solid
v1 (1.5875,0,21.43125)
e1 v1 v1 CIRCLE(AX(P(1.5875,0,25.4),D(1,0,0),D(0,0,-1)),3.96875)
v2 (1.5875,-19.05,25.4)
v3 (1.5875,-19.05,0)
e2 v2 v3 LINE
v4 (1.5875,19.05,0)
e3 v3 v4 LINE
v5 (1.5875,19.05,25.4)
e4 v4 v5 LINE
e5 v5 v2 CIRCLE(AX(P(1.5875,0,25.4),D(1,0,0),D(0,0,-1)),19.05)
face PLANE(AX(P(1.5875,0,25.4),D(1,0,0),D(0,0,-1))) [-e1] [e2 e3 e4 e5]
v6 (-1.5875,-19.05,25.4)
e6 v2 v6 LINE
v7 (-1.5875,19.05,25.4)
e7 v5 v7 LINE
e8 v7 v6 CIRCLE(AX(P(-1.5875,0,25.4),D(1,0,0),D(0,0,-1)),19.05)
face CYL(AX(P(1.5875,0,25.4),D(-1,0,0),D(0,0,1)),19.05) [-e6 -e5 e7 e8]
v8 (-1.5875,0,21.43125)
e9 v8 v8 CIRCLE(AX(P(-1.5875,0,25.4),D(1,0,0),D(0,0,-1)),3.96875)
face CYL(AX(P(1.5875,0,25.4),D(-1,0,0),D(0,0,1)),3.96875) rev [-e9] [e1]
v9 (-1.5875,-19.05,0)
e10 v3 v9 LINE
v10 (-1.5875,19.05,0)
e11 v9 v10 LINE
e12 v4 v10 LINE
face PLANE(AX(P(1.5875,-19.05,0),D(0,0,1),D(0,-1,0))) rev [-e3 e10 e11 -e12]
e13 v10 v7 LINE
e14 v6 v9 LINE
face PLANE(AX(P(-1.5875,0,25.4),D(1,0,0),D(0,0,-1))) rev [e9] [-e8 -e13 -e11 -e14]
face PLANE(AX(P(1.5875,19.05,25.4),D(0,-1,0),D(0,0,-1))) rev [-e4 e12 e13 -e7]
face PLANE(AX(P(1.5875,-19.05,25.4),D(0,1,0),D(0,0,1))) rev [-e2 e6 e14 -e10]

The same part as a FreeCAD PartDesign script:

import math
import FreeCAD as App
import Part
import Sketcher

V = App.Vector
Q = App.Units.Quantity

doc = App.newDocument("Part")
body = doc.addObject("PartDesign::Body", "Body")

sketch1 = body.newObject("Sketcher::SketchObject", "Sketch")
sketch1.AttachmentSupport = (doc.getObject("YZ_Plane"), [""])
sketch1.MapMode = "FlatFace"
sketch1.addGeometry(Part.LineSegment(V(-19.1, 25.4, 0), V(-19.1, 0, 0)), False)
sketch1.addGeometry(Part.LineSegment(V(-19.1, 0, 0), V(19.1, 0, 0)), False)
sketch1.addGeometry(Part.LineSegment(V(19.1, 0, 0), V(19.1, 25.4, 0)), False)
sketch1.addGeometry(Part.ArcOfCircle(Part.Circle(V(0, 25.4, 0), V(0, 0, 1), 19.1), math.radians(0), math.radians(180)), False)
sketch1.addGeometry(Part.Circle(V(0, 25.4, 0), V(0, 0, 1), 4), False)
sketch1.addConstraint(Sketcher.Constraint("Coincident", 0, 2, 1, 1))
sketch1.addConstraint(Sketcher.Constraint("Coincident", 1, 2, 2, 1))
sketch1.addConstraint(Sketcher.Constraint("Tangent", 2, 2, 3, 1))
sketch1.addConstraint(Sketcher.Constraint("Tangent", 3, 2, 0, 1))
sketch1.addConstraint(Sketcher.Constraint("Vertical", 0))
sketch1.addConstraint(Sketcher.Constraint("Horizontal", 1))
sketch1.addConstraint(Sketcher.Constraint("Vertical", 2))
sketch1.addConstraint(Sketcher.Constraint("Coincident", 4, 3, 3, 3))
sketch1.addConstraint(Sketcher.Constraint("Symmetric", 0, 2, 1, 2, -1, 1))
sketch1.addConstraint(Sketcher.Constraint("DistanceY", 0, 2, 0, 1, Q("1 in")))
sketch1.addConstraint(Sketcher.Constraint("Radius", 3, Q("0.75 in")))
sketch1.addConstraint(Sketcher.Constraint("Diameter", 4, Q("0.3125 in")))
pad1 = body.newObject("PartDesign::Pad", "Pad")
pad1.Profile = sketch1
pad1.Length = Q("0.125 in")
pad1.Midplane = True

doc.recompute()
